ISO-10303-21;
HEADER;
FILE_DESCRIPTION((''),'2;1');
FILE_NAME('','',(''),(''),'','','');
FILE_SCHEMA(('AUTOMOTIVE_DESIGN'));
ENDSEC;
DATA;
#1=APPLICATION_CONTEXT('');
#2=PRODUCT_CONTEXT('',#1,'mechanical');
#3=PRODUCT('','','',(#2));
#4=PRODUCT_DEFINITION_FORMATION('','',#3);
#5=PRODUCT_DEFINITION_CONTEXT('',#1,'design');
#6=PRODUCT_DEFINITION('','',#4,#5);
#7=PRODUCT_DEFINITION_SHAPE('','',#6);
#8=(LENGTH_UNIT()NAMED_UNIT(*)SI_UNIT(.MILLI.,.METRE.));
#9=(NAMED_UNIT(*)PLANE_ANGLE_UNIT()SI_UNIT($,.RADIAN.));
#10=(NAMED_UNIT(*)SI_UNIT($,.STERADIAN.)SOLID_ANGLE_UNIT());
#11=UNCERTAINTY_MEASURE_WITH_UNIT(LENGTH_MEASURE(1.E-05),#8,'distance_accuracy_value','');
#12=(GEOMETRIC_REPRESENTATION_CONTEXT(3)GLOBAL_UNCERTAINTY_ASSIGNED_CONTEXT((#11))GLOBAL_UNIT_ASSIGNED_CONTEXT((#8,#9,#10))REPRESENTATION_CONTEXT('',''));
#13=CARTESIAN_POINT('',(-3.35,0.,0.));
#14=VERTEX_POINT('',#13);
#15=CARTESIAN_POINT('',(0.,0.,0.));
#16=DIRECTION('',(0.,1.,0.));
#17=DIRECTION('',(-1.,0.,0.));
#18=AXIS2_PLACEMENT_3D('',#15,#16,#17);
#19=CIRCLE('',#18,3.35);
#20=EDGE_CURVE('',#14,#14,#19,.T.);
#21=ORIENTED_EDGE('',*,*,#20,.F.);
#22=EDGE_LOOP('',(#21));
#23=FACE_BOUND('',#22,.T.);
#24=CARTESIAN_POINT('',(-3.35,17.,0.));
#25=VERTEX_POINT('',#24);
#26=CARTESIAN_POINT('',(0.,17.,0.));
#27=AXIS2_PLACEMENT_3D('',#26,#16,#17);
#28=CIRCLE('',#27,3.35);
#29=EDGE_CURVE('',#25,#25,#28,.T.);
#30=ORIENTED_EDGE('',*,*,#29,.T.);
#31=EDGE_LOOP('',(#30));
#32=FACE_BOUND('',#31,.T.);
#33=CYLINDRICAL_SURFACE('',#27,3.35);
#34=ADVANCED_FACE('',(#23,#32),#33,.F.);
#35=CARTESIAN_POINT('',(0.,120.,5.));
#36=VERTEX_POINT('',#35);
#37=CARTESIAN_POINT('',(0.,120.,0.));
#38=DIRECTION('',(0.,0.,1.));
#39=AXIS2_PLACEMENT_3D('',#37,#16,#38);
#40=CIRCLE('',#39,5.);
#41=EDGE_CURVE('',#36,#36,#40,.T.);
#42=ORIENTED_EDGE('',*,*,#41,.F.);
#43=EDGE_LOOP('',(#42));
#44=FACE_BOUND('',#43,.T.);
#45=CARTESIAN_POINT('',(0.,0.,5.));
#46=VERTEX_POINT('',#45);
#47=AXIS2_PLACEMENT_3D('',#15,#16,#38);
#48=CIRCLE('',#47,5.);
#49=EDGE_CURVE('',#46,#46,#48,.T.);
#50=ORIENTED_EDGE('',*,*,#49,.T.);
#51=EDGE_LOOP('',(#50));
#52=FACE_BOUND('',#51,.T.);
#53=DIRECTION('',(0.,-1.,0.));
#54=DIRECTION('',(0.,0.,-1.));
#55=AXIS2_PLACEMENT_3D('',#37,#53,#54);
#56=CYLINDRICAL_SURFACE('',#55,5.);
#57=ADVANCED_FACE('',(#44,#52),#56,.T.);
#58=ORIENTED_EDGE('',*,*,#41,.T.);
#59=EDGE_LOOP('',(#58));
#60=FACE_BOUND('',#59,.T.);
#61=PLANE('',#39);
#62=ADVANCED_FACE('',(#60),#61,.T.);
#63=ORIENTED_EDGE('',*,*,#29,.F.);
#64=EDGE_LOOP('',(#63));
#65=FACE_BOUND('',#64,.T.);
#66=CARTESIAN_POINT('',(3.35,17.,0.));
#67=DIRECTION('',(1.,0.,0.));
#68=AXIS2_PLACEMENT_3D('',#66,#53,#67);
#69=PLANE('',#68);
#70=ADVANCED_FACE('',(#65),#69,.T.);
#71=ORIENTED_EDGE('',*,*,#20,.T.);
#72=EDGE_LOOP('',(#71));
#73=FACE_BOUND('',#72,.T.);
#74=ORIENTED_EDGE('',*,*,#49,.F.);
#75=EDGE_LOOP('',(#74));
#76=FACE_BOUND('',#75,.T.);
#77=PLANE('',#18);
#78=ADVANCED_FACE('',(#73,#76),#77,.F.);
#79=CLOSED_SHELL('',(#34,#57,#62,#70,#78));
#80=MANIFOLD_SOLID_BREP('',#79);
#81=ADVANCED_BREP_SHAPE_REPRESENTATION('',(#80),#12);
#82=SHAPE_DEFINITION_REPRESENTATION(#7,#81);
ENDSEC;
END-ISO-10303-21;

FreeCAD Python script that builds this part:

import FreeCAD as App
import Part
import Sketcher


def add_polygon(sketch, points):
    """Adds a closed chain of lines whose ends are joined by coincident constraints."""
    first, n = sketch.GeometryCount, len(points)
    for a, b in zip(points, points[1:] + points[:1]):
        sketch.addGeometry(Part.LineSegment(App.Vector(*a, 0), App.Vector(*b, 0)), False)
    for i in range(n):
        sketch.addConstraint(Sketcher.Constraint("Coincident", first + i, 2, first + (i + 1) % n, 1))

doc = App.newDocument("Part")
body = doc.addObject("PartDesign::Body", "Body")

sketch1 = body.newObject("Sketcher::SketchObject", "Sketch")
sketch1.AttachmentSupport = (doc.getObject("XY_Plane"), [""])
sketch1.MapMode = "FlatFace"
add_polygon(sketch1, [(0, 0), (2.7, 0), (3.35, 17), (0, 17)])
sketch1.addConstraint(Sketcher.Constraint("Horizontal", 0))
sketch1.addConstraint(Sketcher.Constraint("Horizontal", 2))
sketch1.addConstraint(Sketcher.Constraint("Vertical", 3))
sketch1.addConstraint(Sketcher.Constraint("Coincident", 3, 2, -1, 1))
sketch1.addConstraint(Sketcher.Constraint("DistanceY", 3, 2, 3, 1, 17.0))
sketch1.addConstraint(Sketcher.Constraint("DistanceX", 0, 1, 0, 2, 2.7))
sketch1.addConstraint(Sketcher.Constraint("DistanceX", 2, 2, 2, 1, 3.35))
revolution = body.newObject("PartDesign::Revolution", "Revolution")
revolution.Profile = sketch1
revolution.ReferenceAxis = (sketch1, ["V_Axis"])
revolution.Angle = 360

sketch2 = body.newObject("Sketcher::SketchObject", "Sketch001")
sketch2.AttachmentSupport = (doc.getObject("XZ_Plane"), [""])
sketch2.MapMode = "FlatFace"
sketch2.addGeometry(Part.Circle(App.Vector(0, 0, 0), App.Vector(0, 0, 1), 5), False)
sketch2.addConstraint(Sketcher.Constraint("Coincident", 0, 3, -1, 1))
sketch2.addConstraint(Sketcher.Constraint("Diameter", 0, 10.0))
pad1 = body.newObject("PartDesign::Pad", "Pad")
pad1.Profile = sketch2
pad1.Length = 120
pad1.Reversed = True

sketch3 = body.newObject("Sketcher::SketchObject", "Sketch002")
sketch3.AttachmentSupport = (doc.getObject("XY_Plane"), [""])
sketch3.MapMode = "FlatFace"
add_polygon(sketch3, [(0, 17), (0, 0), (3.35, 0), (3.35, 17)])
sketch3.addConstraint(Sketcher.Constraint("Vertical", 0))
sketch3.addConstraint(Sketcher.Constraint("Horizontal", 1))
sketch3.addConstraint(Sketcher.Constraint("Vertical", 2))
sketch3.addConstraint(Sketcher.Constraint("Horizontal", 3))
sketch3.addConstraint(Sketcher.Constraint("Coincident", 0, 2, -1, 1))
sketch3.addConstraint(Sketcher.Constraint("DistanceY", 0, 2, 0, 1, 17.0))
sketch3.addConstraint(Sketcher.Constraint("DistanceX", 1, 1, 1, 2, 3.35))
groove = body.newObject("PartDesign::Groove", "Groove")
groove.Profile = sketch3
groove.ReferenceAxis = (sketch3, ["V_Axis"])
groove.Angle = 360

doc.recompute()
